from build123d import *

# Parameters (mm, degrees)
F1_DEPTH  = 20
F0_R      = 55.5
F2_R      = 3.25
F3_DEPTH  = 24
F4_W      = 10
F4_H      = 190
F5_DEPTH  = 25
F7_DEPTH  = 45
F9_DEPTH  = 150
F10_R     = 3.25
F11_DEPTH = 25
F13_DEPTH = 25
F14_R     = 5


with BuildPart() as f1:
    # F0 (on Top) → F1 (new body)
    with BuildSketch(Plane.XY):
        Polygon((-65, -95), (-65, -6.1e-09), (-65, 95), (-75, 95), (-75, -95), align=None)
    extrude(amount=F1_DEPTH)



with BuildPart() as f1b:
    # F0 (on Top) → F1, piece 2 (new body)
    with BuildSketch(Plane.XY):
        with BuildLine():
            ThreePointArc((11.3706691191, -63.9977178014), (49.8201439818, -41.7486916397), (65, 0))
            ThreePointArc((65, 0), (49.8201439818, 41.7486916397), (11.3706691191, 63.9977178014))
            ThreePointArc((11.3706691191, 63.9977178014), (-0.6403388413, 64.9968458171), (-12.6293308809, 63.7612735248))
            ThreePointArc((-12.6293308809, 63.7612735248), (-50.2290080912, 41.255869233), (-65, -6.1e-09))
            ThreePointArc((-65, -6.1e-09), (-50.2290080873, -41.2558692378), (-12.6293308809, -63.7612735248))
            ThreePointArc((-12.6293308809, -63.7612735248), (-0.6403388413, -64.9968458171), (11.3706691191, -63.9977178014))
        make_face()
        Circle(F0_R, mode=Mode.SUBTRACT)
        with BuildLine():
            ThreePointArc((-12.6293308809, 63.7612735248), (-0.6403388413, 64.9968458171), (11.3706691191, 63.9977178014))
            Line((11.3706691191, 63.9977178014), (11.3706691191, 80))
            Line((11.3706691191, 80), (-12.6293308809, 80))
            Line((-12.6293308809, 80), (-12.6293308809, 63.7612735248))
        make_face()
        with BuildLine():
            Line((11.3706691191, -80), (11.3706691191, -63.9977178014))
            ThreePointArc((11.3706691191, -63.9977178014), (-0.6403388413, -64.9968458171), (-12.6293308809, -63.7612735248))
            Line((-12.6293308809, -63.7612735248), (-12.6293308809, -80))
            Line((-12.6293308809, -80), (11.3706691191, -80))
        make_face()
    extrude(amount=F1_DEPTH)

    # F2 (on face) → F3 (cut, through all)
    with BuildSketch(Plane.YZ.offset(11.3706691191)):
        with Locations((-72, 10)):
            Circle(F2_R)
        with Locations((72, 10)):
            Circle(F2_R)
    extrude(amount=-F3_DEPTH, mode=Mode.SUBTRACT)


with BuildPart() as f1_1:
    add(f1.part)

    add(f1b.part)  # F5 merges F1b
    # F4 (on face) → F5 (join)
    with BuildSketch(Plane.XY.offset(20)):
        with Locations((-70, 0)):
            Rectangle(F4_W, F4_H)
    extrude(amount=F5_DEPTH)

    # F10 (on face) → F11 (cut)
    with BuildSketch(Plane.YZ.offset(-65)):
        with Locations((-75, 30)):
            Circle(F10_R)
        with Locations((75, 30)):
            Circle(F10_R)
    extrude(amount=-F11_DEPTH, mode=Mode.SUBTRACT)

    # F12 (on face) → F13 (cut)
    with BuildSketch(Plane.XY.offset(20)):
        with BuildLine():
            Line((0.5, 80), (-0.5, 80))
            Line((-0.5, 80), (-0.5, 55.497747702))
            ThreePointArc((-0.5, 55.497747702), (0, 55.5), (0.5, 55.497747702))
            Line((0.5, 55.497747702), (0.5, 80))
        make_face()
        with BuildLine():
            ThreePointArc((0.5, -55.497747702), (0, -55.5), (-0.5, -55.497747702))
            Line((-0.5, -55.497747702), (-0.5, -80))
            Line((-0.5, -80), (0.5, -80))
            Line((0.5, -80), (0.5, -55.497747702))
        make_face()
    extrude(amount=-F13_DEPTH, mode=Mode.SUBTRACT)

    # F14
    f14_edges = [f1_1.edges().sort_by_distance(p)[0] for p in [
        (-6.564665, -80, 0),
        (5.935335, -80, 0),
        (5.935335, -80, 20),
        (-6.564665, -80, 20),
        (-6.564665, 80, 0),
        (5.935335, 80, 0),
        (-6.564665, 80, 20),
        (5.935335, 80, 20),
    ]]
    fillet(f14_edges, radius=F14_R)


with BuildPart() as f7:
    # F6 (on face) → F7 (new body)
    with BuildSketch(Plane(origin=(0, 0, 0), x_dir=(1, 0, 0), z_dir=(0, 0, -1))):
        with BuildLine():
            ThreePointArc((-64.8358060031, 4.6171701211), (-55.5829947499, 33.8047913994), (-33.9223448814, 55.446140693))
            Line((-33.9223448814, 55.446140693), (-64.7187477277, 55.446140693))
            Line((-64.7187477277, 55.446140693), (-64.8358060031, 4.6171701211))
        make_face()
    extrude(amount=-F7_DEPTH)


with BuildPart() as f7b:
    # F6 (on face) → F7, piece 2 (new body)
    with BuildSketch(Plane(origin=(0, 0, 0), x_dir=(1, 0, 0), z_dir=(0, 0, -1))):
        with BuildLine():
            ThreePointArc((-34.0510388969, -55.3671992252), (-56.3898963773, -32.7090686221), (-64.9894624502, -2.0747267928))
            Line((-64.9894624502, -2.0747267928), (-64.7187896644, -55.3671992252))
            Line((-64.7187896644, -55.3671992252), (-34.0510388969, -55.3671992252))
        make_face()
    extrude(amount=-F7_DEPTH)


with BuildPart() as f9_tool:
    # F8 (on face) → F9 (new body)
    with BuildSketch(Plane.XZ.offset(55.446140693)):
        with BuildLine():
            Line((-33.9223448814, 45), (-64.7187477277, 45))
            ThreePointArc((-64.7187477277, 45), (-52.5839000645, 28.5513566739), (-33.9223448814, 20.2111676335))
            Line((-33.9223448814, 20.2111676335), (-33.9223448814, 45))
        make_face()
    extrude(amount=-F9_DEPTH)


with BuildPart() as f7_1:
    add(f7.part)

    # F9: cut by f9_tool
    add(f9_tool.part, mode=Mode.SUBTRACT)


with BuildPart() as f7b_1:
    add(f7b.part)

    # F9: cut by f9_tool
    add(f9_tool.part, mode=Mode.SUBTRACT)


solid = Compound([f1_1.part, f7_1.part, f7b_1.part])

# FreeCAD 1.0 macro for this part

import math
import FreeCAD as App
import Part
import Sketcher
from FreeCAD import Vector
Q = App.Units.Quantity


def edges_at(feature, points):
    """Names of the edges that pass closest to the given points."""
    edges = feature.Shape.Edges
    near = lambda p: min(range(len(edges)), key=lambda i: edges[i].distToShape(Part.Vertex(*p))[0])
    return sorted({f"Edge{near(p) + 1}" for p in points})

doc = App.newDocument("Part")
params = doc.addObject("Spreadsheet::Sheet", "Params")
for row, (alias, value) in enumerate([
    ("sketch1_width", "10 mm"),
    ("sketch1_height", "190 mm"),
    ("pad1_length", "20 mm"),
    ("sketch2_diameter", "111 mm"),
    ("sketch2_radius", "65 mm"),
    ("sketch2_width", "24 mm"),
    ("pad2_length", "20 mm"),
    ("sketch3_diameter", "6.5 mm"),
    ("sketch4_width", "10 mm"),
    ("sketch4_height", "190 mm"),
    ("pad3_length", "25 mm"),
    ("sketch5_diameter", "6.5 mm"),
    ("pocket2_length", "25 mm"),
    ("sketch6_radius", "55.499999 mm"),
    ("sketch6_width", "1 mm"),
    ("pocket3_length", "25 mm"),
    ("fillet_radius", "5 mm"),
    ("pad4_length", "45 mm"),
    ("pad5_length", "45 mm"),
    ("pad6_length", "150 mm"),
], start=1):
    params.set(f"A{row}", alias)
    params.set(f"B{row}", "=" + value)
    params.setAlias(f"B{row}", alias)

body = doc.addObject("PartDesign::Body", "Body")

# Sketch on XY plane
sketch1 = body.newObject("Sketcher::SketchObject", "Sketch")
sketch1.AttachmentSupport = (doc.getObject("XY_Plane"), [""])
sketch1.MapMode = "FlatFace"
sketch1.addGeometry([
    Part.LineSegment(Vector(-65, -95, 0), Vector(-65, 95, 0)),
    Part.LineSegment(Vector(-65, 95, 0), Vector(-75, 95, 0)),
    Part.LineSegment(Vector(-75, 95, 0), Vector(-75, -95, 0)),
    Part.LineSegment(Vector(-75, -95, 0), Vector(-65, -95, 0)),
], False)
sketch1.addConstraint([
    Sketcher.Constraint("Coincident", 0, 2, 1, 1),
    Sketcher.Constraint("Coincident", 1, 2, 2, 1),
    Sketcher.Constraint("Coincident", 2, 2, 3, 1),
    Sketcher.Constraint("Coincident", 3, 2, 0, 1),
    Sketcher.Constraint("Vertical", 0),
    Sketcher.Constraint("Horizontal", 1),
    Sketcher.Constraint("Vertical", 2),
    Sketcher.Constraint("Horizontal", 3),
    Sketcher.Constraint("DistanceX", 1, 2, 1, 1, Q("10 mm")),
    Sketcher.Constraint("DistanceY", 0, 1, 0, 2, Q("190 mm")),
    Sketcher.Constraint("DistanceX", 0, 2, -1, 1, Q("65 mm")),
    Sketcher.Constraint("DistanceY", -1, 1, 0, 2, Q("95 mm")),
])
sketch1.setExpression("Constraints[8]", "Params.sketch1_width")
sketch1.setExpression("Constraints[9]", "Params.sketch1_height")
pad1 = body.newObject("PartDesign::Pad", "Pad")
pad1.Profile = sketch1
pad1.setExpression("Length", "Params.pad1_length")
body2 = doc.addObject("PartDesign::Body", "Body001")

# Sketch on XY plane
sketch2 = body2.newObject("Sketcher::SketchObject", "Sketch001")
sketch2.AttachmentSupport = (doc.getObject("XY_Plane001"), [""])
sketch2.MapMode = "FlatFace"
sketch2.addGeometry([
    Part.ArcOfCircle(Part.Circle(Vector(0, 0, 0), Vector(0, 0, 1), 65), math.radians(-79.925219), math.radians(0)),  # 0
    Part.ArcOfCircle(Part.Circle(Vector(0, 0, 0), Vector(0, 0, 1), 65), math.radians(0), math.radians(79.925219)),  # 1
    Part.LineSegment(Vector(11.370669, 63.997718, 0), Vector(11.370669, 80, 0)),  # 2
    Part.LineSegment(Vector(11.370669, 80, 0), Vector(-12.629331, 80, 0)),  # 3
    Part.LineSegment(Vector(-12.629331, 80, 0), Vector(-12.629331, 63.761274, 0)),  # 4
    Part.ArcOfCircle(Part.Circle(Vector(0, 0, 0), Vector(0, 0, 1), 65), math.radians(101.203682), math.radians(180)),  # 5
    Part.ArcOfCircle(Part.Circle(Vector(0, 0, 0), Vector(0, 0, 1), 65), math.radians(-180), math.radians(-101.203682)),  # 6
    Part.LineSegment(Vector(-12.629331, -63.761274, 0), Vector(-12.629331, -80, 0)),  # 7
    Part.LineSegment(Vector(-12.629331, -80, 0), Vector(11.370669, -80, 0)),  # 8
    Part.LineSegment(Vector(11.370669, -80, 0), Vector(11.370669, -63.997718, 0)),  # 9
    Part.Circle(Vector(0, 0, 0), Vector(0, 0, 1), 55.5),  # 10
], False)
sketch2.addConstraint([
    Sketcher.Constraint("Tangent", 0, 2, 1, 1),
    Sketcher.Constraint("Coincident", 1, 2, 2, 1),
    Sketcher.Constraint("Coincident", 2, 2, 3, 1),
    Sketcher.Constraint("Coincident", 3, 2, 4, 1),
    Sketcher.Constraint("Coincident", 4, 2, 5, 1),
    Sketcher.Constraint("Tangent", 5, 2, 6, 1),
    Sketcher.Constraint("Coincident", 6, 2, 7, 1),
    Sketcher.Constraint("Coincident", 7, 2, 8, 1),
    Sketcher.Constraint("Coincident", 8, 2, 9, 1),
    Sketcher.Constraint("Coincident", 9, 2, 0, 1),
    Sketcher.Constraint("Vertical", 2),
    Sketcher.Constraint("Horizontal", 3),
    Sketcher.Constraint("Vertical", 4),
    Sketcher.Constraint("Vertical", 7),
    Sketcher.Constraint("Horizontal", 8),
    Sketcher.Constraint("Vertical", 9),
    Sketcher.Constraint("Coincident", 0, 3, -1, 1),
    Sketcher.Constraint("Coincident", 5, 3, -1, 1),
    Sketcher.Constraint("Coincident", 10, 3, -1, 1),
    Sketcher.Constraint("Equal", 0, 1),
    Sketcher.Constraint("Equal", 1, 5),
    Sketcher.Constraint("Equal", 5, 6),
    Sketcher.Constraint("Symmetric", 3, 2, 7, 2, -1),
    Sketcher.Constraint("PointOnObject", 0, 2, -1),
    Sketcher.Constraint("PointOnObject", 5, 2, -1),
    Sketcher.Constraint("Vertical", 2, 2, 8, 2),
    Sketcher.Constraint("Diameter", 10, Q("111 mm")),
    Sketcher.Constraint("Radius", 0, Q("65 mm")),
    Sketcher.Constraint("DistanceX", 3, 2, 3, 1, Q("24 mm")),
    Sketcher.Constraint("DistanceY", -1, 1, 2, 2, Q("80 mm")),
    Sketcher.Constraint("DistanceY", 2, 1, 2, 2, Q("16.002282 mm")),
])
sketch2.setExpression("Constraints[26]", "Params.sketch2_diameter")
sketch2.setExpression("Constraints[27]", "Params.sketch2_radius")
sketch2.setExpression("Constraints[28]", "Params.sketch2_width")
pad2 = body2.newObject("PartDesign::Pad", "Pad001")
pad2.Profile = sketch2
pad2.setExpression("Length", "Params.pad2_length")

# Sketch on YZ plane
sketch3 = body2.newObject("Sketcher::SketchObject", "Sketch002")
sketch3.AttachmentSupport = (doc.getObject("YZ_Plane001"), [""])
sketch3.MapMode = "FlatFace"
sketch3.AttachmentOffset = App.Placement(Vector(0, 0, 11.370669), App.Rotation())
sketch3.addGeometry([
    Part.Circle(Vector(-72, 10, 0), Vector(0, 0, 1), 3.25),
    Part.Circle(Vector(72, 10, 0), Vector(0, 0, 1), 3.25),
], False)
sketch3.addConstraint([
    Sketcher.Constraint("Equal", 0, 1),
    Sketcher.Constraint("Symmetric", 0, 3, 1, 3, -2),
    Sketcher.Constraint("Diameter", 0, Q("6.5 mm")),
    Sketcher.Constraint("DistanceX", 0, 3, -1, 1, Q("72 mm")),
    Sketcher.Constraint("DistanceY", -1, 1, 0, 3, Q("10 mm")),
])
sketch3.setExpression("Constraints[2]", "Params.sketch3_diameter")
pocket1 = body2.newObject("PartDesign::Pocket", "Pocket")
pocket1.Profile = sketch3
pocket1.Type = "ThroughAll"
body.AllowCompound = True
doc.recompute()

boolean = body.newObject("PartDesign::Boolean", "Boolean")
boolean.Type = "Fuse"
boolean.addObjects([body2])

# Sketch on XY plane
sketch4 = body.newObject("Sketcher::SketchObject", "Sketch003")
sketch4.AttachmentSupport = (doc.getObject("XY_Plane"), [""])
sketch4.MapMode = "FlatFace"
sketch4.AttachmentOffset = App.Placement(Vector(0, 0, 20), App.Rotation())
sketch4.addGeometry([
    Part.LineSegment(Vector(-75, 95, 0), Vector(-75, -95, 0)),
    Part.LineSegment(Vector(-75, -95, 0), Vector(-65, -95, 0)),
    Part.LineSegment(Vector(-65, -95, 0), Vector(-65, 95, 0)),
    Part.LineSegment(Vector(-65, 95, 0), Vector(-75, 95, 0)),
], False)
sketch4.addConstraint([
    Sketcher.Constraint("Coincident", 0, 2, 1, 1),
    Sketcher.Constraint("Coincident", 1, 2, 2, 1),
    Sketcher.Constraint("Coincident", 2, 2, 3, 1),
    Sketcher.Constraint("Coincident", 3, 2, 0, 1),
    Sketcher.Constraint("Vertical", 0),
    Sketcher.Constraint("Horizontal", 1),
    Sketcher.Constraint("Vertical", 2),
    Sketcher.Constraint("Horizontal", 3),
    Sketcher.Constraint("DistanceX", 1, 1, 1, 2, Q("10 mm")),
    Sketcher.Constraint("DistanceY", 0, 2, 0, 1, Q("190 mm")),
    Sketcher.Constraint("DistanceX", 0, 2, -1, 1, Q("75 mm")),
    Sketcher.Constraint("DistanceY", 0, 2, -1, 1, Q("95 mm")),
])
sketch4.setExpression("Constraints[8]", "Params.sketch4_width")
sketch4.setExpression("Constraints[9]", "Params.sketch4_height")
pad3 = body.newObject("PartDesign::Pad", "Pad002")
pad3.Profile = sketch4
pad3.setExpression("Length", "Params.pad3_length")

# Sketch on YZ plane
sketch5 = body.newObject("Sketcher::SketchObject", "Sketch004")
sketch5.AttachmentSupport = (doc.getObject("YZ_Plane"), [""])
sketch5.MapMode = "FlatFace"
sketch5.AttachmentOffset = App.Placement(Vector(0, 0, -65), App.Rotation())
sketch5.addGeometry([
    Part.Circle(Vector(-75, 30, 0), Vector(0, 0, 1), 3.25),
    Part.Circle(Vector(75, 30, 0), Vector(0, 0, 1), 3.25),
], False)
sketch5.addConstraint([
    Sketcher.Constraint("Equal", 0, 1),
    Sketcher.Constraint("Symmetric", 0, 3, 1, 3, -2),
    Sketcher.Constraint("Diameter", 0, Q("6.5 mm")),
    Sketcher.Constraint("DistanceX", 0, 3, -1, 1, Q("75 mm")),
    Sketcher.Constraint("DistanceY", -1, 1, 0, 3, Q("30 mm")),
])
sketch5.setExpression("Constraints[2]", "Params.sketch5_diameter")
pocket2 = body.newObject("PartDesign::Pocket", "Pocket001")
pocket2.Profile = sketch5
pocket2.setExpression("Length", "Params.pocket2_length")

# Sketch on XY plane
sketch6 = body.newObject("Sketcher::SketchObject", "Sketch005")
sketch6.AttachmentSupport = (doc.getObject("XY_Plane"), [""])
sketch6.MapMode = "FlatFace"
sketch6.AttachmentOffset = App.Placement(Vector(0, 0, 20), App.Rotation())
sketch6.addGeometry([
    Part.LineSegment(Vector(0.5, 80, 0), Vector(-0.5, 80, 0)),  # 0
    Part.LineSegment(Vector(-0.5, 80, 0), Vector(-0.5, 55.497748, 0)),  # 1
    Part.ArcOfCircle(Part.Circle(Vector(0, 0.000001, 0), Vector(0, 0, 1), 55.499999), math.radians(89.483815), math.radians(90.516185)),  # 2
    Part.LineSegment(Vector(0.5, 55.497748, 0), Vector(0.5, 80, 0)),  # 3
    Part.ArcOfCircle(Part.Circle(Vector(0, -0.000001, 0), Vector(0, 0, 1), 55.499999), math.radians(-90.516185), math.radians(-89.483815)),  # 4
    Part.LineSegment(Vector(-0.5, -55.497748, 0), Vector(-0.5, -80, 0)),  # 5
    Part.LineSegment(Vector(-0.5, -80, 0), Vector(0.5, -80, 0)),  # 6
    Part.LineSegment(Vector(0.5, -80, 0), Vector(0.5, -55.497748, 0)),  # 7
], False)
sketch6.addConstraint([
    Sketcher.Constraint("Coincident", 0, 2, 1, 1),
    Sketcher.Constraint("Coincident", 1, 2, 2, 2),
    Sketcher.Constraint("Coincident", 2, 1, 3, 1),
    Sketcher.Constraint("Coincident", 3, 2, 0, 1),
    Sketcher.Constraint("Coincident", 4, 1, 5, 1),
    Sketcher.Constraint("Coincident", 5, 2, 6, 1),
    Sketcher.Constraint("Coincident", 6, 2, 7, 1),
    Sketcher.Constraint("Coincident", 7, 2, 4, 2),
    Sketcher.Constraint("Horizontal", 0),
    Sketcher.Constraint("Vertical", 1),
    Sketcher.Constraint("Vertical", 3),
    Sketcher.Constraint("Vertical", 5),
    Sketcher.Constraint("Horizontal", 6),
    Sketcher.Constraint("Vertical", 7),
    Sketcher.Constraint("Coincident", 2, 3, -1, 1),
    Sketcher.Constraint("Coincident", 4, 3, -1, 1),
    Sketcher.Constraint("Equal", 2, 4),
    Sketcher.Constraint("Symmetric", 3, 2, 5, 2, -1, 1),
    Sketcher.Constraint("Horizontal", 1, 2, 2, 1),
    Sketcher.Constraint("Horizontal", 4, 1, 7, 2),
    Sketcher.Constraint("Radius", 2, Q("55.499999 mm")),
    Sketcher.Constraint("DistanceX", 0, 2, 0, 1, Q("1 mm")),
    Sketcher.Constraint("DistanceY", -1, 1, 0, 2, Q("80 mm")),
])
sketch6.setExpression("Constraints[20]", "Params.sketch6_radius")
sketch6.setExpression("Constraints[21]", "Params.sketch6_width")
pocket3 = body.newObject("PartDesign::Pocket", "Pocket002")
pocket3.Profile = sketch6
pocket3.setExpression("Length", "Params.pocket3_length")
doc.recompute()

fillet = body.newObject("PartDesign::Fillet", "Fillet")
fillet.Base = (pocket3, edges_at(pocket3, [
    (-6.565, -80, 0),
    (5.935, -80, 0),
    (5.935, -80, 20),
    (-6.565, -80, 20),
    (-6.565, 80, 0),
    (5.935, 80, 0),
    (-6.565, 80, 20),
    (5.935, 80, 20),
]))
fillet.setExpression("Radius", "Params.fillet_radius")
body3 = doc.addObject("PartDesign::Body", "Body002")

# Sketch on XY plane
sketch7 = body3.newObject("Sketcher::SketchObject", "Sketch006")
sketch7.AttachmentSupport = (doc.getObject("XY_Plane002"), [""])
sketch7.MapMode = "FlatFace"
sketch7.addGeometry([
    Part.ArcOfCircle(Part.Circle(Vector(-0.42555, -0.258813, 0), Vector(0, 0, 1), 64.557543), math.radians(-176.128949), math.radians(-121.2563)),
    Part.LineSegment(Vector(-33.922345, -55.446141, 0), Vector(-64.718748, -55.446141, 0)),
    Part.LineSegment(Vector(-64.718748, -55.446141, 0), Vector(-64.835806, -4.61717, 0)),
], False)
sketch7.addConstraint([
    Sketcher.Constraint("Coincident", 0, 2, 1, 1),
    Sketcher.Constraint("Coincident", 1, 2, 2, 1),
    Sketcher.Constraint("Coincident", 2, 2, 0, 1),
    Sketcher.Constraint("Horizontal", 1),
    Sketcher.Constraint("Radius", 0, Q("64.557543 mm")),
    Sketcher.Constraint("DistanceX", 1, 2, 0, 3, Q("64.293198 mm")),
    Sketcher.Constraint("DistanceX", 1, 2, 1, 1, Q("30.796403 mm")),
    Sketcher.Constraint("DistanceX", 0, 3, -1, 1, Q("0.42555 mm")),
    Sketcher.Constraint("DistanceY", 0, 2, -1, 1, Q("55.446141 mm")),
    Sketcher.Constraint("DistanceY", 2, 2, -1, 1, Q("4.61717 mm")),
])
pad4 = body3.newObject("PartDesign::Pad", "Pad003")
pad4.Profile = sketch7
pad4.setExpression("Length", "Params.pad4_length")
body4 = doc.addObject("PartDesign::Body", "Body003")

# Sketch on XY plane
sketch8 = body4.newObject("Sketcher::SketchObject", "Sketch007")
sketch8.AttachmentSupport = (doc.getObject("XY_Plane003"), [""])
sketch8.MapMode = "FlatFace"
sketch8.addGeometry([
    Part.ArcOfCircle(Part.Circle(Vector(-1.27687, 0.71374, 0), Vector(0, 0, 1), 63.727128), math.radians(120.949952), math.radians(178.776271)),
    Part.LineSegment(Vector(-64.989462, 2.074727, 0), Vector(-64.71879, 55.367199, 0)),
    Part.LineSegment(Vector(-64.71879, 55.367199, 0), Vector(-34.051039, 55.367199, 0)),
], False)
sketch8.addConstraint([
    Sketcher.Constraint("Coincident", 0, 2, 1, 1),
    Sketcher.Constraint("Coincident", 1, 2, 2, 1),
    Sketcher.Constraint("Coincident", 2, 2, 0, 1),
    Sketcher.Constraint("Horizontal", 2),
    Sketcher.Constraint("Radius", 0, Q("63.727128 mm")),
    Sketcher.Constraint("DistanceX", 2, 1, 2, 2, Q("30.667751 mm")),
    Sketcher.Constraint("DistanceY", -1, 1, 1, 2, Q("55.367199 mm")),
    Sketcher.Constraint("Distance", 1, Q("53.29316 mm")),
    Sketcher.Constraint("DistanceX", 0, 3, -1, 1, Q("1.27687 mm")),
    Sketcher.Constraint("DistanceY", -1, 1, 0, 3, Q("0.71374 mm")),
])
pad5 = body4.newObject("PartDesign::Pad", "Pad004")
pad5.Profile = sketch8
pad5.setExpression("Length", "Params.pad5_length")
body5 = doc.addObject("PartDesign::Body", "Body004")

# Sketch on XZ plane
sketch9 = body5.newObject("Sketcher::SketchObject", "Sketch008")
sketch9.AttachmentSupport = (doc.getObject("XZ_Plane004"), [""])
sketch9.MapMode = "FlatFace"
sketch9.AttachmentOffset = App.Placement(Vector(0, 0, 55.446141), App.Rotation())
sketch9.addGeometry([
    Part.LineSegment(Vector(-33.922345, 45, 0), Vector(-64.718748, 45, 0)),
    Part.ArcOfCircle(Part.Circle(Vector(-27.41485, 59.820123, 0), Vector(0, 0, 1), 40.139966), math.radians(-158.333024), math.radians(-99.329976)),
    Part.LineSegment(Vector(-33.922345, 20.211168, 0), Vector(-33.922345, 45, 0)),
], False)
sketch9.addConstraint([
    Sketcher.Constraint("Coincident", 0, 2, 1, 1),
    Sketcher.Constraint("Coincident", 1, 2, 2, 1),
    Sketcher.Constraint("Coincident", 2, 2, 0, 1),
    Sketcher.Constraint("Horizontal", 0),
    Sketcher.Constraint("Vertical", 2),
    Sketcher.Constraint("DistanceY", -1, 1, 0, 2, Q("45 mm")),
    Sketcher.Constraint("Radius", 1, Q("40.139966 mm")),
    Sketcher.Constraint("DistanceX", 0, 2, 1, 3, Q("37.303898 mm")),
    Sketcher.Constraint("DistanceX", 0, 2, 0, 1, Q("30.796403 mm")),
    Sketcher.Constraint("DistanceX", 1, 3, -1, 1, Q("27.41485 mm")),
])
pad6 = body5.newObject("PartDesign::Pad", "Pad005")
pad6.Profile = sketch9
pad6.setExpression("Length", "Params.pad6_length")
pad6.Reversed = True
doc.recompute()

body6 = doc.addObject("PartDesign::Body", "Body005")
body6.BaseFeature = body5
boolean2 = body3.newObject("PartDesign::Boolean", "Boolean001")
boolean2.Type = "Cut"
boolean2.addObjects([body6])
doc.recompute()

boolean3 = body4.newObject("PartDesign::Boolean", "Boolean002")
boolean3.Type = "Cut"
boolean3.addObjects([body5])

doc.recompute()
